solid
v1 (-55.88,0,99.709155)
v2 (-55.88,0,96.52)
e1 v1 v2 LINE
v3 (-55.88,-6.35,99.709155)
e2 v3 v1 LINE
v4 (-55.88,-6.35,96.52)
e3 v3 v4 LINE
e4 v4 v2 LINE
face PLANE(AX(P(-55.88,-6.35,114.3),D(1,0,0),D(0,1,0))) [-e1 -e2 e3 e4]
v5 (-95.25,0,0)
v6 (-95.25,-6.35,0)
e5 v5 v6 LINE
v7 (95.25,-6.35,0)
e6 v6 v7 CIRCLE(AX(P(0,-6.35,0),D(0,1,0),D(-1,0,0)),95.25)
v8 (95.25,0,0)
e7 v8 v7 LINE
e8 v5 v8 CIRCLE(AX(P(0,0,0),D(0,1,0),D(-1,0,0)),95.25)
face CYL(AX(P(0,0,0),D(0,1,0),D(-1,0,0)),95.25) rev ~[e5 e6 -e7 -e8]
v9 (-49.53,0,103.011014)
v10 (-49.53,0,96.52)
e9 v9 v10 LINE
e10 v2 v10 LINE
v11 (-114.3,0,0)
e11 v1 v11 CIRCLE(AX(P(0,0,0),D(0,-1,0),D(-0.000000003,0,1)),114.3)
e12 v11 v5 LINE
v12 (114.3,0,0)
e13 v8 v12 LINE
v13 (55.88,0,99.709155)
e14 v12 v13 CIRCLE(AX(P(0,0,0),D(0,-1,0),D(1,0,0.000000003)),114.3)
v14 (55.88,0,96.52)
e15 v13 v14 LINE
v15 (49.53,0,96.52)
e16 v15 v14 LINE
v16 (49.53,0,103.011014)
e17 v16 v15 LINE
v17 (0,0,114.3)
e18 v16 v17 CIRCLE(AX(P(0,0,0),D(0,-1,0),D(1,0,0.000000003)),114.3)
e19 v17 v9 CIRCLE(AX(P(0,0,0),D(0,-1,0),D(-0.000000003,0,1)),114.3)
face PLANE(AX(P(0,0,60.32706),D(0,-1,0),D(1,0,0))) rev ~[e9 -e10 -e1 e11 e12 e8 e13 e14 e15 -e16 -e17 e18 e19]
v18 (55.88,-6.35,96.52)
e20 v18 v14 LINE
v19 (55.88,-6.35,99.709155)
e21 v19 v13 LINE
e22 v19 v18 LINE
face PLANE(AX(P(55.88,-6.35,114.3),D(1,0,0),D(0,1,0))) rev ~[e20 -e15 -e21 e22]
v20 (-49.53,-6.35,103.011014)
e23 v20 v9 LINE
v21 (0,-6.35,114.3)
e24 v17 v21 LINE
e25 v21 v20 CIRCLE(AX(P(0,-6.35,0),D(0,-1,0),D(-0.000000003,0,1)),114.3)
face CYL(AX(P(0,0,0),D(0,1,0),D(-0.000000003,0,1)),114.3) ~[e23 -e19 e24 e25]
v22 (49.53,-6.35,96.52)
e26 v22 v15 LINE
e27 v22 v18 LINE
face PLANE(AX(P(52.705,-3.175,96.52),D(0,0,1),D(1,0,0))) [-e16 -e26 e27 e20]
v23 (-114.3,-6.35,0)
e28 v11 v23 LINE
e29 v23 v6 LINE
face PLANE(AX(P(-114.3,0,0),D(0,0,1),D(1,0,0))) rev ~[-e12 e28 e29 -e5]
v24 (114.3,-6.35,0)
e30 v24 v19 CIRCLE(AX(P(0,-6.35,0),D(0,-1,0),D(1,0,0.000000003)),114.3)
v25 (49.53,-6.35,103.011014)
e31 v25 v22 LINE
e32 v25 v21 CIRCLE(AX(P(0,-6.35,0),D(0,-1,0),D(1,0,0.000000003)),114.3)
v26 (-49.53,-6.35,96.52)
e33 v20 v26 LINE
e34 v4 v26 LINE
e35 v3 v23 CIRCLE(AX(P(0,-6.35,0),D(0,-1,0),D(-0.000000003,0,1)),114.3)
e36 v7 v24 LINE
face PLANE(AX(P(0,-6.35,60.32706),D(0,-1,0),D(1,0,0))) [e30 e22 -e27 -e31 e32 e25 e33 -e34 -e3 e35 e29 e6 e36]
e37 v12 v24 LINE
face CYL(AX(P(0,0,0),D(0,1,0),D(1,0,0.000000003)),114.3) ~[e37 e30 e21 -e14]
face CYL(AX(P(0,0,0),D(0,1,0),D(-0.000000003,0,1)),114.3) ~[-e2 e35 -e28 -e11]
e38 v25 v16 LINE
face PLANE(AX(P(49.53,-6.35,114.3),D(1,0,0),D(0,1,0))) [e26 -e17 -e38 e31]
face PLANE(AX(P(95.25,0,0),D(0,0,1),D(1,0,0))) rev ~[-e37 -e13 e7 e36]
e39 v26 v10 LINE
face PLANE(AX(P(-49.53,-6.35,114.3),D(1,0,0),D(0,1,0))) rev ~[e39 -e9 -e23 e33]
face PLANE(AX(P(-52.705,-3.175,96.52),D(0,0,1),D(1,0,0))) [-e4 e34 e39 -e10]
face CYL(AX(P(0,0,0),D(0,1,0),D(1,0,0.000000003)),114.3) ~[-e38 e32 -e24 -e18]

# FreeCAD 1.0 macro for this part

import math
import FreeCAD as App
import Part
import Sketcher
Q = App.Units.Quantity

doc = App.newDocument("Part")
body = doc.addObject("PartDesign::Body", "Body")

# Sketch on XZ plane
sketch1 = body.newObject("Sketcher::SketchObject", "Sketch")
sketch1.AttachmentSupport = (doc.getObject("XZ_Plane"), [""])
sketch1.MapMode = "FlatFace"
sketch1.addGeometry([
    Part.LineSegment(App.Vector(95, 0, 0), App.Vector(114, 0, 0)),  # 0
    Part.ArcOfCircle(Part.Circle(App.Vector(0, 0, 0), App.Vector(0, 0, 1), 114), math.radians(0), math.radians(90)),  # 1
    Part.ArcOfCircle(Part.Circle(App.Vector(0, 0, 0), App.Vector(0, 0, 1), 114), math.radians(90), math.radians(180)),  # 2
    Part.LineSegment(App.Vector(-114, 0, 0), App.Vector(-95, 0, 0)),  # 3
    Part.ArcOfCircle(Part.Circle(App.Vector(0, 0, 0), App.Vector(0, 0, 1), 95), math.radians(0), math.radians(180)),  # 4
], False)
sketch1.addConstraint([
    Sketcher.Constraint("Coincident", 0, 2, 1, 1),
    Sketcher.Constraint("Tangent", 1, 2, 2, 1),
    Sketcher.Constraint("Coincident", 2, 2, 3, 1),
    Sketcher.Constraint("Coincident", 3, 2, 4, 2),
    Sketcher.Constraint("Coincident", 4, 1, 0, 1),
    Sketcher.Constraint("Horizontal", 0),
    Sketcher.Constraint("Horizontal", 3),
    Sketcher.Constraint("Coincident", 1, 3, -1, 1),
    Sketcher.Constraint("Coincident", 4, 3, -1, 1),
    Sketcher.Constraint("Equal", 1, 2),
    Sketcher.Constraint("PointOnObject", 0, 2, -1),
    Sketcher.Constraint("PointOnObject", 1, 2, -2),
    Sketcher.Constraint("PointOnObject", 2, 2, -1),
    Sketcher.Constraint("Radius", 1, Q("4.5 in")),
    Sketcher.Constraint("Radius", 4, Q("3.75 in")),
])
pad1 = body.newObject("PartDesign::Pad", "Pad")
pad1.Profile = sketch1
pad1.Length = Q("0.25 in")

# Sketch on XY plane
sketch2 = body.newObject("Sketcher::SketchObject", "Sketch001")
sketch2.AttachmentSupport = (doc.getObject("XY_Plane"), [""])
sketch2.MapMode = "FlatFace"
sketch2.AttachmentOffset = App.Placement(App.Vector(0, 0, 4.5 * 25.4), App.Rotation())
sketch2.addGeometry([
    Part.LineSegment(App.Vector(-56, 0, 0), App.Vector(-56, -6, 0)),  # 0
    Part.LineSegment(App.Vector(-56, -6, 0), App.Vector(-50, -6, 0)),  # 1
    Part.LineSegment(App.Vector(-50, -6, 0), App.Vector(-50, 0, 0)),  # 2
    Part.LineSegment(App.Vector(-50, 0, 0), App.Vector(-56, 0, 0)),  # 3
    Part.LineSegment(App.Vector(50, 0, 0), App.Vector(50, -6, 0)),  # 4
    Part.LineSegment(App.Vector(50, -6, 0), App.Vector(56, -6, 0)),  # 5
    Part.LineSegment(App.Vector(56, -6, 0), App.Vector(56, 0, 0)),  # 6
    Part.LineSegment(App.Vector(56, 0, 0), App.Vector(50, 0, 0)),  # 7
], False)
sketch2.addConstraint([
    Sketcher.Constraint("Coincident", 0, 2, 1, 1),
    Sketcher.Constraint("Coincident", 1, 2, 2, 1),
    Sketcher.Constraint("Coincident", 2, 2, 3, 1),
    Sketcher.Constraint("Coincident", 3, 2, 0, 1),
    Sketcher.Constraint("Coincident", 4, 2, 5, 1),
    Sketcher.Constraint("Coincident", 5, 2, 6, 1),
    Sketcher.Constraint("Coincident", 6, 2, 7, 1),
    Sketcher.Constraint("Coincident", 7, 2, 4, 1),
    Sketcher.Constraint("Vertical", 0),
    Sketcher.Constraint("Horizontal", 1),
    Sketcher.Constraint("Vertical", 2),
    Sketcher.Constraint("Horizontal", 3),
    Sketcher.Constraint("Vertical", 4),
    Sketcher.Constraint("Horizontal", 5),
    Sketcher.Constraint("Vertical", 6),
    Sketcher.Constraint("Horizontal", 7),
    Sketcher.Constraint("Symmetric", 3, 2, 6, 2, -1, 1),
    Sketcher.Constraint("Symmetric", 1, 2, 4, 2, -2),
    Sketcher.Constraint("PointOnObject", 2, 2, -1),
    Sketcher.Constraint("Equal", 7, 0),
    Sketcher.Constraint("DistanceX", 1, 1, 1, 2, Q("0.25 in")),
    Sketcher.Constraint("DistanceX", 0, 2, -1, 1, Q("2.2 in")),
])
pocket1 = body.newObject("PartDesign::Pocket", "Pocket")
pocket1.Profile = sketch2
pocket1.Length = Q("0.7 in")

doc.recompute()
